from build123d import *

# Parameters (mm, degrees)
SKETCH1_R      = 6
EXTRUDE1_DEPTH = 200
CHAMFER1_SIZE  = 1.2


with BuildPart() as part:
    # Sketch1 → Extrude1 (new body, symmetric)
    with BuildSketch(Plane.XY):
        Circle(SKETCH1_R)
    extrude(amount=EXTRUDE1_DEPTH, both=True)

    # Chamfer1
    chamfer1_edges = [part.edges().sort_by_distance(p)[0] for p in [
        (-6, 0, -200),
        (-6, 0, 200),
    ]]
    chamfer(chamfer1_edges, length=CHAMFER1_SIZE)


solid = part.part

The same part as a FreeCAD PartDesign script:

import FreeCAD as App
import Part
import Sketcher
from FreeCAD import Vector
Q = App.Units.Quantity


def edges_at(feature, points):
    """Names of the edges that pass closest to the given points."""
    edges = feature.Shape.Edges
    near = lambda p: min(range(len(edges)), key=lambda i: edges[i].distToShape(Part.Vertex(*p))[0])
    return sorted({f"Edge{near(p) + 1}" for p in points})

doc = App.newDocument("Part")
body = doc.addObject("PartDesign::Body", "Body")

# Sketch on XY plane
sketch1 = body.newObject("Sketcher::SketchObject", "Sketch")
sketch1.AttachmentSupport = (doc.getObject("XY_Plane"), [""])
sketch1.MapMode = "FlatFace"
sketch1.addGeometry(Part.Circle(Vector(0, 0, 0), Vector(0, 0, 1), 6), False)
sketch1.addConstraint([
    Sketcher.Constraint("Coincident", 0, 3, -1, 1),
    Sketcher.Constraint("Diameter", 0, Q("12 mm")),
])
pad1 = body.newObject("PartDesign::Pad", "Pad")
pad1.Profile = sketch1
pad1.Length = 400
pad1.Midplane = True
doc.recompute()

chamfer = body.newObject("PartDesign::Chamfer", "Chamfer")
chamfer.Base = (pad1, edges_at(pad1, [(-6, 0, -200), (-6, 0, 200)]))
chamfer.Size = 1.2

doc.recompute()
